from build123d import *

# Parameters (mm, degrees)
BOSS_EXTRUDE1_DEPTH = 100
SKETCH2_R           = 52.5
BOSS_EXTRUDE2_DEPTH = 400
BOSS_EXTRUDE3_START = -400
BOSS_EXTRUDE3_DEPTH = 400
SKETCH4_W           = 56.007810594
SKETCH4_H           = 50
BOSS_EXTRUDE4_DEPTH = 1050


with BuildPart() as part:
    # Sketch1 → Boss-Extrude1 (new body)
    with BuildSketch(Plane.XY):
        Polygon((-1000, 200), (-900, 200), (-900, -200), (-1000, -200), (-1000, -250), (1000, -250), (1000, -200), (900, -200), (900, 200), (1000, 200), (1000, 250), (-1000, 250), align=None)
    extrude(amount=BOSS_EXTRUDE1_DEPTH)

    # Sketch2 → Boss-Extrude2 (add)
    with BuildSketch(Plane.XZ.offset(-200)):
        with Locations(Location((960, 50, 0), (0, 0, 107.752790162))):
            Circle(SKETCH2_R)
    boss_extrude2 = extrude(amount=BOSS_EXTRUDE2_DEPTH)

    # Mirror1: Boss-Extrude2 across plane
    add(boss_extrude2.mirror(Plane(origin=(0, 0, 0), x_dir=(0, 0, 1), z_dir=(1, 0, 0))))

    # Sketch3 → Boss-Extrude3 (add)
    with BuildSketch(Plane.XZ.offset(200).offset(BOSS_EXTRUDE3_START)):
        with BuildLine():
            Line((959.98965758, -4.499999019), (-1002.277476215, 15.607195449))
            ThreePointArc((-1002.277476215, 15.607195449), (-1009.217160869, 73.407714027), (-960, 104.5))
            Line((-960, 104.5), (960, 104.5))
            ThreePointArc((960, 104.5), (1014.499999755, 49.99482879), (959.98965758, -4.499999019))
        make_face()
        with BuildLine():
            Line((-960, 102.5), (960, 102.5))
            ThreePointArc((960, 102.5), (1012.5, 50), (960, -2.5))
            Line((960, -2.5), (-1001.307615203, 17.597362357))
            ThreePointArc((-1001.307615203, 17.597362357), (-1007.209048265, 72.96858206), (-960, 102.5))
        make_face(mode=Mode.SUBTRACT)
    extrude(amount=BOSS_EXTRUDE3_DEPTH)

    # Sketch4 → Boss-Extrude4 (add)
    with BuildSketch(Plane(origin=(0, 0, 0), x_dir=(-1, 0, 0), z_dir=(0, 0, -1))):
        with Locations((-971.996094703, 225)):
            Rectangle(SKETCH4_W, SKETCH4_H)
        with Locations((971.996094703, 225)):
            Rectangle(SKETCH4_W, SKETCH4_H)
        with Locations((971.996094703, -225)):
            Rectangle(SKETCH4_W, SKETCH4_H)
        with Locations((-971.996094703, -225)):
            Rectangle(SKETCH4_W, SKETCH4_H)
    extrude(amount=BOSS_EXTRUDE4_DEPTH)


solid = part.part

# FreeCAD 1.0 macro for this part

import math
import FreeCAD as App
import Part
import Sketcher

V = App.Vector

doc = App.newDocument("Part")
params = doc.addObject("Spreadsheet::Sheet", "Params")
for row, (alias, value) in enumerate([
    ("sketch1_width", "100 mm"),
    ("sketch1_width2", "2000 mm"),
    ("sketch1_height", "400 mm"),
    ("sketch1_height2", "50 mm"),
    ("pad1_length", "100 mm"),
    ("sketch2_diameter", "105 mm"),
    ("pad2_length", "400 mm"),
    ("sketch3_radius", "54.5 mm"),
    ("sketch3_radius2", "52.5 mm"),
    ("sketch3_width", "1920 mm"),
    ("pad3_length", "400 mm"),
    ("sketch4_height", "50 mm"),
    ("pad4_length", "1050 mm"),
], start=1):
    params.set(f"A{row}", alias)
    params.set(f"B{row}", "=" + value)
    params.setAlias(f"B{row}", alias)

body = doc.addObject("PartDesign::Body", "Body")

# Sketch on XY plane
sketch1 = body.newObject("Sketcher::SketchObject", "Sketch")
sketch1.AttachmentSupport = (doc.getObject("XY_Plane"), [""])
sketch1.MapMode = "FlatFace"
sketch1.addGeometry(Part.LineSegment(V(-1000, 200, 0), V(-900, 200, 0)), False)
sketch1.addGeometry(Part.LineSegment(V(-900, 200, 0), V(-900, -200, 0)), False)
sketch1.addGeometry(Part.LineSegment(V(-900, -200, 0), V(-1000, -200, 0)), False)
sketch1.addGeometry(Part.LineSegment(V(-1000, -200, 0), V(-1000, -250, 0)), False)
sketch1.addGeometry(Part.LineSegment(V(-1000, -250, 0), V(1000, -250, 0)), False)
sketch1.addGeometry(Part.LineSegment(V(1000, -250, 0), V(1000, -200, 0)), False)
sketch1.addGeometry(Part.LineSegment(V(1000, -200, 0), V(900, -200, 0)), False)
sketch1.addGeometry(Part.LineSegment(V(900, -200, 0), V(900, 200, 0)), False)
sketch1.addGeometry(Part.LineSegment(V(900, 200, 0), V(1000, 200, 0)), False)
sketch1.addGeometry(Part.LineSegment(V(1000, 200, 0), V(1000, 250, 0)), False)
sketch1.addGeometry(Part.LineSegment(V(1000, 250, 0), V(-1000, 250, 0)), False)
sketch1.addGeometry(Part.LineSegment(V(-1000, 250, 0), V(-1000, 200, 0)), False)
sketch1.addConstraint(Sketcher.Constraint("Coincident", 0, 2, 1, 1))
sketch1.addConstraint(Sketcher.Constraint("Coincident", 1, 2, 2, 1))
sketch1.addConstraint(Sketcher.Constraint("Coincident", 2, 2, 3, 1))
sketch1.addConstraint(Sketcher.Constraint("Coincident", 3, 2, 4, 1))
sketch1.addConstraint(Sketcher.Constraint("Coincident", 4, 2, 5, 1))
sketch1.addConstraint(Sketcher.Constraint("Coincident", 5, 2, 6, 1))
sketch1.addConstraint(Sketcher.Constraint("Coincident", 6, 2, 7, 1))
sketch1.addConstraint(Sketcher.Constraint("Coincident", 7, 2, 8, 1))
sketch1.addConstraint(Sketcher.Constraint("Coincident", 8, 2, 9, 1))
sketch1.addConstraint(Sketcher.Constraint("Coincident", 9, 2, 10, 1))
sketch1.addConstraint(Sketcher.Constraint("Coincident", 10, 2, 11, 1))
sketch1.addConstraint(Sketcher.Constraint("Coincident", 11, 2, 0, 1))
sketch1.addConstraint(Sketcher.Constraint("Horizontal", 0))
sketch1.addConstraint(Sketcher.Constraint("Vertical", 1))
sketch1.addConstraint(Sketcher.Constraint("Horizontal", 2))
sketch1.addConstraint(Sketcher.Constraint("Vertical", 3))
sketch1.addConstraint(Sketcher.Constraint("Horizontal", 4))
sketch1.addConstraint(Sketcher.Constraint("Vertical", 5))
sketch1.addConstraint(Sketcher.Constraint("Horizontal", 6))
sketch1.addConstraint(Sketcher.Constraint("Vertical", 7))
sketch1.addConstraint(Sketcher.Constraint("Horizontal", 8))
sketch1.addConstraint(Sketcher.Constraint("Vertical", 9))
sketch1.addConstraint(Sketcher.Constraint("Horizontal", 10))
sketch1.addConstraint(Sketcher.Constraint("Vertical", 11))
sketch1.addConstraint(Sketcher.Constraint("Symmetric", 0, 2, 6, 2, -1, 1))
sketch1.addConstraint(Sketcher.Constraint("Symmetric", 2, 2, 8, 2, -1, 1))
sketch1.addConstraint(Sketcher.Constraint("Symmetric", 4, 2, 10, 2, -1, 1))
sketch1.addConstraint(Sketcher.Constraint("Symmetric", 2, 2, 5, 2, -2))
sketch1.addConstraint(Sketcher.Constraint("DistanceX", 0, 1, 0, 2, 100.0))
sketch1.addConstraint(Sketcher.Constraint("DistanceX", 4, 1, 4, 2, 2000.0))
sketch1.addConstraint(Sketcher.Constraint("DistanceY", 1, 2, 1, 1, 400.0))
sketch1.addConstraint(Sketcher.Constraint("DistanceY", 3, 2, 3, 1, 50.0))
sketch1.setExpression("Constraints[28]", "Params.sketch1_width")
sketch1.setExpression("Constraints[29]", "Params.sketch1_width2")
sketch1.setExpression("Constraints[30]", "Params.sketch1_height")
sketch1.setExpression("Constraints[31]", "Params.sketch1_height2")
pad1 = body.newObject("PartDesign::Pad", "Pad")
pad1.Profile = sketch1
pad1.setExpression("Length", "Params.pad1_length")

# Sketch on XZ plane
sketch2 = body.newObject("Sketcher::SketchObject", "Sketch001")
sketch2.AttachmentSupport = (doc.getObject("XZ_Plane"), [""])
sketch2.MapMode = "FlatFace"
sketch2.AttachmentOffset = App.Placement(V(0, 0, -200), App.Rotation())
sketch2.addGeometry(Part.Circle(V(960, 50, 0), V(0, 0, 1), 52.5), False)
sketch2.addConstraint(Sketcher.Constraint("Diameter", 0, 105.0))
sketch2.addConstraint(Sketcher.Constraint("DistanceX", -1, 1, 0, 3, 960.0))
sketch2.addConstraint(Sketcher.Constraint("DistanceY", -1, 1, 0, 3, 50.0))
sketch2.setExpression("Constraints[0]", "Params.sketch2_diameter")
pad2 = body.newObject("PartDesign::Pad", "Pad001")
pad2.Profile = sketch2
pad2.setExpression("Length", "Params.pad2_length")
doc.recompute()

mirrored = body.newObject("PartDesign::Mirrored", "Mirrored")
mirrored.Originals = [pad2]
mirrored.MirrorPlane = (doc.getObject("YZ_Plane"), [""])
body.Tip = mirrored

# Sketch on XZ plane
sketch3 = body.newObject("Sketcher::SketchObject", "Sketch002")
sketch3.AttachmentSupport = (doc.getObject("XZ_Plane"), [""])
sketch3.MapMode = "FlatFace"
sketch3.AttachmentOffset = App.Placement(V(0, 0, -200), App.Rotation())
sketch3.addGeometry(Part.LineSegment(V(-1002.277476, 15.607195, 0), V(959.989658, -4.499999, 0)), False)
sketch3.addGeometry(Part.ArcOfCircle(Part.Circle(V(960, 50, 0), V(0, 0, 1), 54.5), math.radians(-90.010873), math.radians(90)), False)
sketch3.addGeometry(Part.LineSegment(V(960, 104.5, 0), V(-960, 104.5, 0)), False)
sketch3.addGeometry(Part.ArcOfCircle(Part.Circle(V(-960, 50, 0), V(0, 0, 1), 54.5), math.radians(90), math.radians(219.128418)), False)
sketch3.addGeometry(Part.LineSegment(V(-960, 102.5, 0), V(960, 102.5, 0)), False)
sketch3.addGeometry(Part.ArcOfCircle(Part.Circle(V(960, 50, 0), V(0, 0, 1), 52.5), math.radians(-90), math.radians(90)), False)
sketch3.addGeometry(Part.LineSegment(V(960, -2.5, 0), V(-1001.307615, 17.597362, 0)), False)
sketch3.addGeometry(Part.ArcOfCircle(Part.Circle(V(-960, 50, 0), V(0, 0, 1), 52.5), math.radians(90), math.radians(218.111448)), False)
sketch3.addConstraint(Sketcher.Constraint("Coincident", 0, 2, 1, 1))
sketch3.addConstraint(Sketcher.Constraint("Tangent", 1, 2, 2, 1))
sketch3.addConstraint(Sketcher.Constraint("Tangent", 2, 2, 3, 1))
sketch3.addConstraint(Sketcher.Constraint("Coincident", 3, 2, 0, 1))
sketch3.addConstraint(Sketcher.Constraint("Tangent", 4, 2, 5, 2))
sketch3.addConstraint(Sketcher.Constraint("Coincident", 5, 1, 6, 1))
sketch3.addConstraint(Sketcher.Constraint("Coincident", 6, 2, 7, 2))
sketch3.addConstraint(Sketcher.Constraint("Tangent", 7, 1, 4, 1))
sketch3.addConstraint(Sketcher.Constraint("Horizontal", 2))
sketch3.addConstraint(Sketcher.Constraint("Horizontal", 4))
sketch3.addConstraint(Sketcher.Constraint("Coincident", 5, 3, 1, 3))
sketch3.addConstraint(Sketcher.Constraint("Coincident", 7, 3, 3, 3))
sketch3.addConstraint(Sketcher.Constraint("Equal", 1, 3))
sketch3.addConstraint(Sketcher.Constraint("Parallel", 0, 6))
sketch3.addConstraint(Sketcher.Constraint("Vertical", 4, 2, 5, 1))
sketch3.addConstraint(Sketcher.Constraint("Radius", 1, 54.5))
sketch3.addConstraint(Sketcher.Constraint("Radius", 5, 52.5))
sketch3.addConstraint(Sketcher.Constraint("DistanceX", 2, 2, 2, 1, 1920.0))
sketch3.addConstraint(Sketcher.Constraint("DistanceX", -1, 1, 1, 3, 960.0))
sketch3.addConstraint(Sketcher.Constraint("DistanceY", -1, 1, 1, 3, 50.0))
sketch3.addConstraint(Sketcher.Constraint("Distance", 0, 1962.370149))
sketch3.addConstraint(Sketcher.Constraint("Distance", 6, 1961.410581))
sketch3.setExpression("Constraints[15]", "Params.sketch3_radius")
sketch3.setExpression("Constraints[16]", "Params.sketch3_radius2")
sketch3.setExpression("Constraints[17]", "Params.sketch3_width")
pad3 = body.newObject("PartDesign::Pad", "Pad002")
pad3.Profile = sketch3
pad3.setExpression("Length", "Params.pad3_length")

# Sketch on XY plane
sketch4 = body.newObject("Sketcher::SketchObject", "Sketch003")
sketch4.AttachmentSupport = (doc.getObject("XY_Plane"), [""])
sketch4.MapMode = "FlatFace"
sketch4.addGeometry(Part.LineSegment(V(1000, 250, 0), V(1000, 200, 0)), False)
sketch4.addGeometry(Part.LineSegment(V(1000, 200, 0), V(943.992189, 200, 0)), False)
sketch4.addGeometry(Part.LineSegment(V(943.992189, 200, 0), V(943.992189, 250, 0)), False)
sketch4.addGeometry(Part.LineSegment(V(943.992189, 250, 0), V(1000, 250, 0)), False)
sketch4.addGeometry(Part.LineSegment(V(-943.992189, 250, 0), V(-943.992189, 200, 0)), False)
sketch4.addGeometry(Part.LineSegment(V(-943.992189, 200, 0), V(-1000, 200, 0)), False)
sketch4.addGeometry(Part.LineSegment(V(-1000, 200, 0), V(-1000, 250, 0)), False)
sketch4.addGeometry(Part.LineSegment(V(-1000, 250, 0), V(-943.992189, 250, 0)), False)
sketch4.addGeometry(Part.LineSegment(V(-943.992189, -200, 0), V(-943.992189, -250, 0)), False)
sketch4.addGeometry(Part.LineSegment(V(-943.992189, -250, 0), V(-1000, -250, 0)), False)
sketch4.addGeometry(Part.LineSegment(V(-1000, -250, 0), V(-1000, -200, 0)), False)
sketch4.addGeometry(Part.LineSegment(V(-1000, -200, 0), V(-943.992189, -200, 0)), False)
sketch4.addGeometry(Part.LineSegment(V(1000, -200, 0), V(1000, -250, 0)), False)
sketch4.addGeometry(Part.LineSegment(V(1000, -250, 0), V(943.992189, -250, 0)), False)
sketch4.addGeometry(Part.LineSegment(V(943.992189, -250, 0), V(943.992189, -200, 0)), False)
sketch4.addGeometry(Part.LineSegment(V(943.992189, -200, 0), V(1000, -200, 0)), False)
sketch4.addConstraint(Sketcher.Constraint("Coincident", 0, 2, 1, 1))
sketch4.addConstraint(Sketcher.Constraint("Coincident", 1, 2, 2, 1))
sketch4.addConstraint(Sketcher.Constraint("Coincident", 2, 2, 3, 1))
sketch4.addConstraint(Sketcher.Constraint("Coincident", 3, 2, 0, 1))
sketch4.addConstraint(Sketcher.Constraint("Coincident", 4, 2, 5, 1))
sketch4.addConstraint(Sketcher.Constraint("Coincident", 5, 2, 6, 1))
sketch4.addConstraint(Sketcher.Constraint("Coincident", 6, 2, 7, 1))
sketch4.addConstraint(Sketcher.Constraint("Coincident", 7, 2, 4, 1))
sketch4.addConstraint(Sketcher.Constraint("Coincident", 8, 2, 9, 1))
sketch4.addConstraint(Sketcher.Constraint("Coincident", 9, 2, 10, 1))
sketch4.addConstraint(Sketcher.Constraint("Coincident", 10, 2, 11, 1))
sketch4.addConstraint(Sketcher.Constraint("Coincident", 11, 2, 8, 1))
sketch4.addConstraint(Sketcher.Constraint("Coincident", 12, 2, 13, 1))
sketch4.addConstraint(Sketcher.Constraint("Coincident", 13, 2, 14, 1))
sketch4.addConstraint(Sketcher.Constraint("Coincident", 14, 2, 15, 1))
sketch4.addConstraint(Sketcher.Constraint("Coincident", 15, 2, 12, 1))
sketch4.addConstraint(Sketcher.Constraint("Vertical", 0))
sketch4.addConstraint(Sketcher.Constraint("Horizontal", 1))
sketch4.addConstraint(Sketcher.Constraint("Vertical", 2))
sketch4.addConstraint(Sketcher.Constraint("Horizontal", 3))
sketch4.addConstraint(Sketcher.Constraint("Vertical", 4))
sketch4.addConstraint(Sketcher.Constraint("Horizontal", 5))
sketch4.addConstraint(Sketcher.Constraint("Vertical", 6))
sketch4.addConstraint(Sketcher.Constraint("Horizontal", 7))
sketch4.addConstraint(Sketcher.Constraint("Vertical", 8))
sketch4.addConstraint(Sketcher.Constraint("Horizontal", 9))
sketch4.addConstraint(Sketcher.Constraint("Vertical", 10))
sketch4.addConstraint(Sketcher.Constraint("Horizontal", 11))
sketch4.addConstraint(Sketcher.Constraint("Vertical", 12))
sketch4.addConstraint(Sketcher.Constraint("Horizontal", 13))
sketch4.addConstraint(Sketcher.Constraint("Vertical", 14))
sketch4.addConstraint(Sketcher.Constraint("Horizontal", 15))
sketch4.addConstraint(Sketcher.Constraint("Symmetric", 2, 2, 8, 2, -1, 1))
sketch4.addConstraint(Sketcher.Constraint("Symmetric", 0, 2, 10, 2, -1, 1))
sketch4.addConstraint(Sketcher.Constraint("Symmetric", 6, 2, 12, 2, -1, 1))
sketch4.addConstraint(Sketcher.Constraint("Symmetric", 4, 2, 14, 2, -1, 1))
sketch4.addConstraint(Sketcher.Constraint("Symmetric", 1, 2, 4, 2, -2))
sketch4.addConstraint(Sketcher.Constraint("Symmetric", 3, 2, 6, 2, -2))
sketch4.addConstraint(Sketcher.Constraint("DistanceY", 0, 2, 0, 1, 50.0))
sketch4.addConstraint(Sketcher.Constraint("DistanceX", -1, 1, 0, 2, 1000.0))
sketch4.addConstraint(Sketcher.Constraint("DistanceY", -1, 1, 0, 2, 200.0))
sketch4.addConstraint(Sketcher.Constraint("DistanceX", 1, 2, 1, 1, 56.007811))
sketch4.setExpression("Constraints[38]", "Params.sketch4_height")
pad4 = body.newObject("PartDesign::Pad", "Pad003")
pad4.Profile = sketch4
pad4.setExpression("Length", "Params.pad4_length")
pad4.Reversed = True

doc.recompute()
